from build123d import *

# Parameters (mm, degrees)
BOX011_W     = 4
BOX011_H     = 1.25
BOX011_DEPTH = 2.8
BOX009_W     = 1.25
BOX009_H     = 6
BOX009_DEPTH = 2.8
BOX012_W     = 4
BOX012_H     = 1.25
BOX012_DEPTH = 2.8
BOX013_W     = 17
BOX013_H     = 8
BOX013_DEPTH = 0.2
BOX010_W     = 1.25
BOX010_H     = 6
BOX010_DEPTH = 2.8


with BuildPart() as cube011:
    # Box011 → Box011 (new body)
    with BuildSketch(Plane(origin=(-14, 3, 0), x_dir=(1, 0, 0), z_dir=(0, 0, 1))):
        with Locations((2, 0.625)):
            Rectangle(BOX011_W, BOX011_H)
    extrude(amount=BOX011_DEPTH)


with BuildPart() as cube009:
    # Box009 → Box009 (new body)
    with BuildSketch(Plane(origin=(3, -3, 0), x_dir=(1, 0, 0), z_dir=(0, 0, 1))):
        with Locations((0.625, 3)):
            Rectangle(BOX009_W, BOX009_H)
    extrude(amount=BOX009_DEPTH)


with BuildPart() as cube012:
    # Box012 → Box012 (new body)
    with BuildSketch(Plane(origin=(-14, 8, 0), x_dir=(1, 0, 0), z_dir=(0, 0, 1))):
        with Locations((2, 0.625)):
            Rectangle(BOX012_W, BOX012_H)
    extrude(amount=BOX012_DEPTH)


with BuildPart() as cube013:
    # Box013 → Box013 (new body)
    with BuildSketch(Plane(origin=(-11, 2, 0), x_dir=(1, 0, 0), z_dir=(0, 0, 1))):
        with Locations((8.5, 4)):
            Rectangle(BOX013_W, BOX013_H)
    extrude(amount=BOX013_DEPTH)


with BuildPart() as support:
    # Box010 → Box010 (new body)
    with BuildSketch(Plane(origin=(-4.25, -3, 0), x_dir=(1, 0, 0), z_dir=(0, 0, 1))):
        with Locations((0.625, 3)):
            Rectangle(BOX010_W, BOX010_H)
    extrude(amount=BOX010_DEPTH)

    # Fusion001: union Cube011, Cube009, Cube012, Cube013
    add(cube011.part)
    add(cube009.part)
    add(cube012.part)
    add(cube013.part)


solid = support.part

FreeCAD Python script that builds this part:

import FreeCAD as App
import Part
import Sketcher
Q = App.Units.Quantity

doc = App.newDocument("Part")
params = doc.addObject("Spreadsheet::Sheet", "Params")
for row, (alias, value) in enumerate([
    ("sketch1_width", "4 mm"),
    ("sketch1_height", "1.25 mm"),
    ("pad1_length", "2.8 mm"),
    ("sketch2_height", "6 mm"),
    ("sketch2_width", "1.25 mm"),
    ("pad2_length", "2.8 mm"),
    ("sketch3_width", "4 mm"),
    ("sketch3_height", "1.25 mm"),
    ("pad3_length", "2.8 mm"),
    ("sketch4_width", "17 mm"),
    ("sketch4_height", "8 mm"),
    ("pad4_length", "0.2 mm"),
    ("sketch5_height", "6 mm"),
    ("sketch5_width", "1.25 mm"),
    ("pad5_length", "2.8 mm"),
], start=1):
    params.set(f"A{row}", alias)
    params.set(f"B{row}", "=" + value)
    params.setAlias(f"B{row}", alias)

body = doc.addObject("PartDesign::Body", "Body")

sketch1 = body.newObject("Sketcher::SketchObject", "Sketch")
sketch1.AttachmentSupport = (doc.getObject("XY_Plane"), [""])
sketch1.MapMode = "FlatFace"
sketch1.addGeometry([
    Part.LineSegment(App.Vector(-14, 4.2, 0), App.Vector(-14, 3, 0)),
    Part.LineSegment(App.Vector(-14, 3, 0), App.Vector(-10, 3, 0)),
    Part.LineSegment(App.Vector(-10, 3, 0), App.Vector(-10, 4.2, 0)),
    Part.LineSegment(App.Vector(-10, 4.2, 0), App.Vector(-14, 4.2, 0)),
], False)
sketch1.addConstraint([
    Sketcher.Constraint("Coincident", 0, 2, 1, 1),
    Sketcher.Constraint("Coincident", 1, 2, 2, 1),
    Sketcher.Constraint("Coincident", 2, 2, 3, 1),
    Sketcher.Constraint("Coincident", 3, 2, 0, 1),
    Sketcher.Constraint("Vertical", 0),
    Sketcher.Constraint("Horizontal", 1),
    Sketcher.Constraint("Vertical", 2),
    Sketcher.Constraint("Horizontal", 3),
    Sketcher.Constraint("DistanceX", 1, 1, 1, 2, Q("4 mm")),
    Sketcher.Constraint("DistanceX", 0, 2, -1, 1, Q("14 mm")),
    Sketcher.Constraint("DistanceY", -1, 1, 0, 2, Q("3 mm")),
    Sketcher.Constraint("DistanceY", 0, 2, 0, 1, Q("1.25 mm")),
])
sketch1.setExpression("Constraints[8]", "Params.sketch1_width")
sketch1.setExpression("Constraints[11]", "Params.sketch1_height")
pad1 = body.newObject("PartDesign::Pad", "Pad")
pad1.Profile = sketch1
pad1.setExpression("Length", "Params.pad1_length")
body2 = doc.addObject("PartDesign::Body", "Body001")

sketch2 = body2.newObject("Sketcher::SketchObject", "Sketch001")
sketch2.AttachmentSupport = (doc.getObject("XY_Plane001"), [""])
sketch2.MapMode = "FlatFace"
sketch2.addGeometry([
    Part.LineSegment(App.Vector(3, 3, 0), App.Vector(3, -3, 0)),
    Part.LineSegment(App.Vector(3, -3, 0), App.Vector(4.2, -3, 0)),
    Part.LineSegment(App.Vector(4.2, -3, 0), App.Vector(4.2, 3, 0)),
    Part.LineSegment(App.Vector(4.2, 3, 0), App.Vector(3, 3, 0)),
], False)
sketch2.addConstraint([
    Sketcher.Constraint("Coincident", 0, 2, 1, 1),
    Sketcher.Constraint("Coincident", 1, 2, 2, 1),
    Sketcher.Constraint("Coincident", 2, 2, 3, 1),
    Sketcher.Constraint("Coincident", 3, 2, 0, 1),
    Sketcher.Constraint("Vertical", 0),
    Sketcher.Constraint("Horizontal", 1),
    Sketcher.Constraint("Vertical", 2),
    Sketcher.Constraint("Horizontal", 3),
    Sketcher.Constraint("DistanceY", 0, 2, 0, 1, Q("6 mm")),
    Sketcher.Constraint("DistanceX", -1, 1, 0, 2, Q("3 mm")),
    Sketcher.Constraint("DistanceY", 0, 2, -1, 1, Q("3 mm")),
    Sketcher.Constraint("DistanceX", 1, 1, 1, 2, Q("1.25 mm")),
])
sketch2.setExpression("Constraints[8]", "Params.sketch2_height")
sketch2.setExpression("Constraints[11]", "Params.sketch2_width")
pad2 = body2.newObject("PartDesign::Pad", "Pad001")
pad2.Profile = sketch2
pad2.setExpression("Length", "Params.pad2_length")
body3 = doc.addObject("PartDesign::Body", "Body002")

sketch3 = body3.newObject("Sketcher::SketchObject", "Sketch002")
sketch3.AttachmentSupport = (doc.getObject("XY_Plane002"), [""])
sketch3.MapMode = "FlatFace"
sketch3.addGeometry([
    Part.LineSegment(App.Vector(-14, 9.2, 0), App.Vector(-14, 8, 0)),
    Part.LineSegment(App.Vector(-14, 8, 0), App.Vector(-10, 8, 0)),
    Part.LineSegment(App.Vector(-10, 8, 0), App.Vector(-10, 9.2, 0)),
    Part.LineSegment(App.Vector(-10, 9.2, 0), App.Vector(-14, 9.2, 0)),
], False)
sketch3.addConstraint([
    Sketcher.Constraint("Coincident", 0, 2, 1, 1),
    Sketcher.Constraint("Coincident", 1, 2, 2, 1),
    Sketcher.Constraint("Coincident", 2, 2, 3, 1),
    Sketcher.Constraint("Coincident", 3, 2, 0, 1),
    Sketcher.Constraint("Vertical", 0),
    Sketcher.Constraint("Horizontal", 1),
    Sketcher.Constraint("Vertical", 2),
    Sketcher.Constraint("Horizontal", 3),
    Sketcher.Constraint("DistanceX", 1, 1, 1, 2, Q("4 mm")),
    Sketcher.Constraint("DistanceX", 0, 2, -1, 1, Q("14 mm")),
    Sketcher.Constraint("DistanceY", -1, 1, 0, 2, Q("8 mm")),
    Sketcher.Constraint("DistanceY", 0, 2, 0, 1, Q("1.25 mm")),
])
sketch3.setExpression("Constraints[8]", "Params.sketch3_width")
sketch3.setExpression("Constraints[11]", "Params.sketch3_height")
pad3 = body3.newObject("PartDesign::Pad", "Pad002")
pad3.Profile = sketch3
pad3.setExpression("Length", "Params.pad3_length")
body4 = doc.addObject("PartDesign::Body", "Body003")

sketch4 = body4.newObject("Sketcher::SketchObject", "Sketch003")
sketch4.AttachmentSupport = (doc.getObject("XY_Plane003"), [""])
sketch4.MapMode = "FlatFace"
sketch4.addGeometry([
    Part.LineSegment(App.Vector(-11, 10, 0), App.Vector(-11, 2, 0)),
    Part.LineSegment(App.Vector(-11, 2, 0), App.Vector(6, 2, 0)),
    Part.LineSegment(App.Vector(6, 2, 0), App.Vector(6, 10, 0)),
    Part.LineSegment(App.Vector(6, 10, 0), App.Vector(-11, 10, 0)),
], False)
sketch4.addConstraint([
    Sketcher.Constraint("Coincident", 0, 2, 1, 1),
    Sketcher.Constraint("Coincident", 1, 2, 2, 1),
    Sketcher.Constraint("Coincident", 2, 2, 3, 1),
    Sketcher.Constraint("Coincident", 3, 2, 0, 1),
    Sketcher.Constraint("Vertical", 0),
    Sketcher.Constraint("Horizontal", 1),
    Sketcher.Constraint("Vertical", 2),
    Sketcher.Constraint("Horizontal", 3),
    Sketcher.Constraint("DistanceX", 1, 1, 1, 2, Q("17 mm")),
    Sketcher.Constraint("DistanceY", 0, 2, 0, 1, Q("8 mm")),
    Sketcher.Constraint("DistanceX", 0, 2, -1, 1, Q("11 mm")),
    Sketcher.Constraint("DistanceY", -1, 1, 0, 2, Q("2 mm")),
])
sketch4.setExpression("Constraints[8]", "Params.sketch4_width")
sketch4.setExpression("Constraints[9]", "Params.sketch4_height")
pad4 = body4.newObject("PartDesign::Pad", "Pad003")
pad4.Profile = sketch4
pad4.setExpression("Length", "Params.pad4_length")
body5 = doc.addObject("PartDesign::Body", "Body004")
body5.AllowCompound = True

sketch5 = body5.newObject("Sketcher::SketchObject", "Sketch004")
sketch5.AttachmentSupport = (doc.getObject("XY_Plane004"), [""])
sketch5.MapMode = "FlatFace"
sketch5.addGeometry([
    Part.LineSegment(App.Vector(-4.2, 3, 0), App.Vector(-4.2, -3, 0)),
    Part.LineSegment(App.Vector(-4.2, -3, 0), App.Vector(-3, -3, 0)),
    Part.LineSegment(App.Vector(-3, -3, 0), App.Vector(-3, 3, 0)),
    Part.LineSegment(App.Vector(-3, 3, 0), App.Vector(-4.2, 3, 0)),
], False)
sketch5.addConstraint([
    Sketcher.Constraint("Coincident", 0, 2, 1, 1),
    Sketcher.Constraint("Coincident", 1, 2, 2, 1),
    Sketcher.Constraint("Coincident", 2, 2, 3, 1),
    Sketcher.Constraint("Coincident", 3, 2, 0, 1),
    Sketcher.Constraint("Vertical", 0),
    Sketcher.Constraint("Horizontal", 1),
    Sketcher.Constraint("Vertical", 2),
    Sketcher.Constraint("Horizontal", 3),
    Sketcher.Constraint("DistanceY", 0, 2, 0, 1, Q("6 mm")),
    Sketcher.Constraint("DistanceY", 0, 2, -1, 1, Q("3 mm")),
    Sketcher.Constraint("DistanceX", 1, 2, -1, 1, Q("3 mm")),
    Sketcher.Constraint("DistanceX", 1, 1, 1, 2, Q("1.25 mm")),
])
sketch5.setExpression("Constraints[8]", "Params.sketch5_height")
sketch5.setExpression("Constraints[11]", "Params.sketch5_width")
pad5 = body5.newObject("PartDesign::Pad", "Pad004")
pad5.Profile = sketch5
pad5.setExpression("Length", "Params.pad5_length")
doc.recompute()

boolean = body5.newObject("PartDesign::Boolean", "Boolean")
boolean.Type = "Fuse"
boolean.addObjects([body])
doc.recompute()

boolean2 = body5.newObject("PartDesign::Boolean", "Boolean001")
boolean2.Type = "Fuse"
boolean2.addObjects([body2])
doc.recompute()

boolean3 = body5.newObject("PartDesign::Boolean", "Boolean002")
boolean3.Type = "Fuse"
boolean3.addObjects([body3])
doc.recompute()

boolean4 = body5.newObject("PartDesign::Boolean", "Boolean003")
boolean4.Type = "Fuse"
boolean4.addObjects([body4])

doc.recompute()
